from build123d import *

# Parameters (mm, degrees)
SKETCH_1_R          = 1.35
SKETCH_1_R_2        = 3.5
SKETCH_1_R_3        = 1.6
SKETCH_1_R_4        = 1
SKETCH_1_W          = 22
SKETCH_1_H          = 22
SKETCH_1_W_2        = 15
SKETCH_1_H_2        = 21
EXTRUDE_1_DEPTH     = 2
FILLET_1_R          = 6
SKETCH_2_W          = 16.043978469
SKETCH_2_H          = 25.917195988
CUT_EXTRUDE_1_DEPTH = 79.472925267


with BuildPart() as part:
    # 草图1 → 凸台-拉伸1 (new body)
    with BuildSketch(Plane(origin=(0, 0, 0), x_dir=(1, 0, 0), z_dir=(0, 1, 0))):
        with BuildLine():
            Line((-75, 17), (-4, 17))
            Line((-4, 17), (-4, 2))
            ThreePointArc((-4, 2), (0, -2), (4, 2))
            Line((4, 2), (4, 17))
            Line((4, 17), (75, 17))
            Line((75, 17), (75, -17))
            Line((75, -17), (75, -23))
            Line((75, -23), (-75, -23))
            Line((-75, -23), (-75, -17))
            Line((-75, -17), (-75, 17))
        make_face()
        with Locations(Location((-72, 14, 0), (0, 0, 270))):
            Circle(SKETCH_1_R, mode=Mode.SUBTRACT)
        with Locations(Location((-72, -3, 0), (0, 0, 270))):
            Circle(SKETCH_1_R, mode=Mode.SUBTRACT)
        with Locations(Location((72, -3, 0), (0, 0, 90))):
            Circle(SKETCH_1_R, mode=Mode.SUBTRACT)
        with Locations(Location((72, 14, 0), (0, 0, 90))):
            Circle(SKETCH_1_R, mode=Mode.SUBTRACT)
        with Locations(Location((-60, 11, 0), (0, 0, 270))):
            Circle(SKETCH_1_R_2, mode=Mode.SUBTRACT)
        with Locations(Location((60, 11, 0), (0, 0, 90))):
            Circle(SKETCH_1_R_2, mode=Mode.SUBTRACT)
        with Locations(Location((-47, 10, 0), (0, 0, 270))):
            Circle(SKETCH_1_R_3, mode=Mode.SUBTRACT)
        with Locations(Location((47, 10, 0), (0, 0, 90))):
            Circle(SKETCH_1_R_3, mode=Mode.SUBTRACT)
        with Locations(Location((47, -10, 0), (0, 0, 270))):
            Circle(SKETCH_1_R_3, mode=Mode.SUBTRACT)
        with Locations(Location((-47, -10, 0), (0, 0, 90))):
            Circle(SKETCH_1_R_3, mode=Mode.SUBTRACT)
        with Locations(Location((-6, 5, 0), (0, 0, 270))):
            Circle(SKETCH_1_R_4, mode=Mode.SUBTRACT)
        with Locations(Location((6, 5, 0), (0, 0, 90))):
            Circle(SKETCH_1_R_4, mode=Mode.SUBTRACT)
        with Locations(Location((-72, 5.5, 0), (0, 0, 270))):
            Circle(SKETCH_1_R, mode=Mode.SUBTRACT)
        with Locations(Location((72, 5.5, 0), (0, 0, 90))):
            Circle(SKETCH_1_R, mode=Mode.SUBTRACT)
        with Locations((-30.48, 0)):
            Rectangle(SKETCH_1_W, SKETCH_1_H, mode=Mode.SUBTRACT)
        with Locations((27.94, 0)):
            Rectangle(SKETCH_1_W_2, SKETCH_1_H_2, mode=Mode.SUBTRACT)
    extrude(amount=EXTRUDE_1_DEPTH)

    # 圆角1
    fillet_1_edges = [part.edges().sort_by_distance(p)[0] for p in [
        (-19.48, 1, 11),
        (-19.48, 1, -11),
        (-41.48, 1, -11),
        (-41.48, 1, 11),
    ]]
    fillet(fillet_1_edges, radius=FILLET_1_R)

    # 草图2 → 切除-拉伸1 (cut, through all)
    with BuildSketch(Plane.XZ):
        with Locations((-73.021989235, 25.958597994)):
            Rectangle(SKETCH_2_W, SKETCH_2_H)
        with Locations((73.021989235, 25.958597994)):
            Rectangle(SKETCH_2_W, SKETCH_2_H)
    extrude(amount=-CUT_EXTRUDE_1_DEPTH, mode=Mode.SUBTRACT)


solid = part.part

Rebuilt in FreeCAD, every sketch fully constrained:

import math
import FreeCAD as App
import Part
import Sketcher
from FreeCAD import Vector
Q = App.Units.Quantity


def edges_at(feature, points):
    """Names of the edges that pass closest to the given points."""
    edges = feature.Shape.Edges
    near = lambda p: min(range(len(edges)), key=lambda i: edges[i].distToShape(Part.Vertex(*p))[0])
    return sorted({f"Edge{near(p) + 1}" for p in points})


def add_polygon(sketch, points):
    """Adds a closed chain of lines whose ends are joined by coincident constraints."""
    first, n = sketch.GeometryCount, len(points)
    for a, b in zip(points, points[1:] + points[:1]):
        sketch.addGeometry(Part.LineSegment(App.Vector(*a, 0), App.Vector(*b, 0)), False)
    for i in range(n):
        sketch.addConstraint(Sketcher.Constraint("Coincident", first + i, 2, first + (i + 1) % n, 1))

doc = App.newDocument("Part")
body = doc.addObject("PartDesign::Body", "Body")

# Sketch on XZ plane
sketch1 = body.newObject("Sketcher::SketchObject", "Sketch")
sketch1.AttachmentSupport = (doc.getObject("XZ_Plane"), [""])
sketch1.MapMode = "FlatFace"
sketch1.addGeometry(Part.LineSegment(Vector(-4, -17, 0), Vector(-75, -17, 0)), False)  # 0
sketch1.addGeometry(Part.LineSegment(Vector(-75, -17, 0), Vector(-75, 23, 0)), False)  # 1
sketch1.addGeometry(Part.LineSegment(Vector(-75, 23, 0), Vector(75, 23, 0)), False)  # 2
sketch1.addGeometry(Part.LineSegment(Vector(75, 23, 0), Vector(75, -17, 0)), False)  # 3
sketch1.addGeometry(Part.LineSegment(Vector(75, -17, 0), Vector(4, -17, 0)), False)  # 4
sketch1.addGeometry(Part.LineSegment(Vector(4, -17, 0), Vector(4, -2, 0)), False)  # 5
sketch1.addGeometry(Part.ArcOfCircle(Part.Circle(Vector(0, -2, 0), Vector(0, 0, 1), 4), math.radians(0), math.radians(180)), False)  # 6
sketch1.addGeometry(Part.LineSegment(Vector(-4, -2, 0), Vector(-4, -17, 0)), False)  # 7
sketch1.addGeometry(Part.Circle(Vector(47, 10, 0), Vector(0, 0, 1), 1.6), False)  # 8
sketch1.addGeometry(Part.Circle(Vector(72, 3, 0), Vector(0, 0, 1), 1.35), False)  # 9
add_polygon(sketch1, [(20.44, 10.5), (20.44, -10.5), (35.44, -10.5), (35.44, 10.5)])  # lines 10-13
sketch1.addGeometry(Part.Circle(Vector(-47, 10, 0), Vector(0, 0, 1), 1.6), False)  # 14
add_polygon(sketch1, [(-41.48, 11), (-41.48, -11), (-19.48, -11), (-19.48, 11)])  # lines 15-18
sketch1.addGeometry(Part.Circle(Vector(-72, 3, 0), Vector(0, 0, 1), 1.35), False)  # 19
sketch1.addGeometry(Part.Circle(Vector(72, -5.5, 0), Vector(0, 0, 1), 1.35), False)  # 20
sketch1.addGeometry(Part.Circle(Vector(6, -5, 0), Vector(0, 0, 1), 1), False)  # 21
sketch1.addGeometry(Part.Circle(Vector(60, -11, 0), Vector(0, 0, 1), 3.5), False)  # 22
sketch1.addGeometry(Part.Circle(Vector(47, -10, 0), Vector(0, 0, 1), 1.6), False)  # 23
sketch1.addGeometry(Part.Circle(Vector(72, -14, 0), Vector(0, 0, 1), 1.35), False)  # 24
sketch1.addGeometry(Part.Circle(Vector(-6, -5, 0), Vector(0, 0, 1), 1), False)  # 25
sketch1.addGeometry(Part.Circle(Vector(-72, -5.5, 0), Vector(0, 0, 1), 1.35), False)  # 26
sketch1.addGeometry(Part.Circle(Vector(-47, -10, 0), Vector(0, 0, 1), 1.6), False)  # 27
sketch1.addGeometry(Part.Circle(Vector(-60, -11, 0), Vector(0, 0, 1), 3.5), False)  # 28
sketch1.addGeometry(Part.Circle(Vector(-72, -14, 0), Vector(0, 0, 1), 1.35), False)  # 29
sketch1.addConstraint([
    Sketcher.Constraint("Coincident", 0, 2, 1, 1),
    Sketcher.Constraint("Coincident", 1, 2, 2, 1),
    Sketcher.Constraint("Coincident", 2, 2, 3, 1),
    Sketcher.Constraint("Coincident", 3, 2, 4, 1),
    Sketcher.Constraint("Coincident", 4, 2, 5, 1),
    Sketcher.Constraint("Tangent", 5, 2, 6, 1),
    Sketcher.Constraint("Tangent", 6, 2, 7, 1),
    Sketcher.Constraint("Coincident", 7, 2, 0, 1),
    Sketcher.Constraint("Horizontal", 0),
    Sketcher.Constraint("Vertical", 1),
    Sketcher.Constraint("Horizontal", 2),
    Sketcher.Constraint("Vertical", 3),
    Sketcher.Constraint("Horizontal", 4),
    Sketcher.Constraint("Vertical", 5),
    Sketcher.Constraint("Vertical", 7),
    Sketcher.Constraint("Vertical", 10),
    Sketcher.Constraint("Horizontal", 11),
    Sketcher.Constraint("Vertical", 12),
    Sketcher.Constraint("Horizontal", 13),
    Sketcher.Constraint("Vertical", 15),
    Sketcher.Constraint("Horizontal", 16),
    Sketcher.Constraint("Vertical", 17),
    Sketcher.Constraint("Horizontal", 18),
    Sketcher.Constraint("Equal", 8, 14),
    Sketcher.Constraint("Equal", 9, 19),
    Sketcher.Constraint("Equal", 19, 20),
    Sketcher.Constraint("Equal", 14, 23),
    Sketcher.Constraint("Equal", 20, 24),
    Sketcher.Constraint("Equal", 21, 25),
    Sketcher.Constraint("Equal", 24, 26),
    Sketcher.Constraint("Equal", 23, 27),
    Sketcher.Constraint("Equal", 22, 28),
    Sketcher.Constraint("Equal", 26, 29),
    Sketcher.Constraint("Symmetric", 14, 3, 23, 3, -1, 1),
    Sketcher.Constraint("Symmetric", 8, 3, 27, 3, -1, 1),
    Sketcher.Constraint("Symmetric", 8, 3, 14, 3, -2),
    Sketcher.Constraint("Symmetric", 9, 3, 19, 3, -2),
    Sketcher.Constraint("Symmetric", 21, 3, 25, 3, -2),
    Sketcher.Constraint("Symmetric", 20, 3, 26, 3, -2),
    Sketcher.Constraint("Symmetric", 22, 3, 28, 3, -2),
    Sketcher.Constraint("Symmetric", 24, 3, 29, 3, -2),
    Sketcher.Constraint("Symmetric", 0, 2, 3, 2, -2),
    Sketcher.Constraint("PointOnObject", 6, 3, -2),
    Sketcher.Constraint("Horizontal", 28, 3, 15, 2),
    Sketcher.Constraint("Vertical", 9, 3, 20, 3),
    Sketcher.Constraint("Vertical", 20, 3, 24, 3),
    Sketcher.Constraint("Equal", 13, 5),
    Sketcher.Constraint("Equal", 18, 15),
    Sketcher.Constraint("Diameter", 21, Q("2 mm")),
    Sketcher.Constraint("Diameter", 22, Q("7 mm")),
    Sketcher.Constraint("Radius", 6, Q("4 mm")),
    Sketcher.Constraint("Diameter", 8, Q("3.2 mm")),
    Sketcher.Constraint("Diameter", 9, Q("2.7 mm")),
    Sketcher.Constraint("DistanceX", 0, 2, 0, 1, Q("71 mm")),
    Sketcher.Constraint("DistanceX", 11, 1, 11, 2, Q("15 mm")),
    Sketcher.Constraint("DistanceX", 16, 1, 16, 2, Q("22 mm")),
    Sketcher.Constraint("DistanceY", 1, 1, 1, 2, Q("40 mm")),
    Sketcher.Constraint("DistanceY", 10, 2, 10, 1, Q("21 mm")),
    Sketcher.Constraint("DistanceY", 6, 3, -1, 1, Q("2 mm")),
    Sketcher.Constraint("DistanceX", -1, 1, 8, 3, Q("47 mm")),
    Sketcher.Constraint("DistanceY", -1, 1, 8, 3, Q("10 mm")),
    Sketcher.Constraint("DistanceX", -1, 1, 9, 3, Q("72 mm")),
    Sketcher.Constraint("DistanceY", -1, 1, 9, 3, Q("3 mm")),
    Sketcher.Constraint("DistanceX", -1, 1, 21, 3, Q("6 mm")),
    Sketcher.Constraint("DistanceY", 21, 3, -1, 1, Q("5 mm")),
    Sketcher.Constraint("DistanceX", -1, 1, 22, 3, Q("60 mm")),
    Sketcher.Constraint("DistanceY", 22, 3, -1, 1, Q("11 mm")),
    Sketcher.Constraint("DistanceY", 24, 3, -1, 1, Q("14 mm")),
    Sketcher.Constraint("DistanceY", 20, 3, -1, 1, Q("5.5 mm")),
    Sketcher.Constraint("DistanceY", 10, 2, -1, 1, Q("10.5 mm")),
    Sketcher.Constraint("DistanceX", -1, 1, 10, 2, Q("20.44 mm")),
    Sketcher.Constraint("DistanceX", 15, 2, -1, 1, Q("41.48 mm")),
])
pad1 = body.newObject("PartDesign::Pad", "Pad")
pad1.Profile = sketch1
pad1.Length = 2
pad1.Reversed = True
doc.recompute()

fillet = body.newObject("PartDesign::Fillet", "Fillet")
fillet.Base = (pad1, edges_at(pad1, [
    (-19.48, 1, 11),
    (-19.48, 1, -11),
    (-41.48, 1, -11),
    (-41.48, 1, 11),
]))
fillet.Radius = 6

# Sketch on XZ plane
sketch2 = body.newObject("Sketcher::SketchObject", "Sketch001")
sketch2.AttachmentSupport = (doc.getObject("XZ_Plane"), [""])
sketch2.MapMode = "FlatFace"
add_polygon(sketch2, [(-81.043978, 38.917196), (-81.043978, 13), (-65, 13), (-65, 38.917196)])  # lines 0-3
add_polygon(sketch2, [(65, 38.917196), (65, 13), (81.043978, 13), (81.043978, 38.917196)])  # lines 4-7
sketch2.addConstraint([
    Sketcher.Constraint("Vertical", 0),
    Sketcher.Constraint("Horizontal", 1),
    Sketcher.Constraint("Vertical", 2),
    Sketcher.Constraint("Horizontal", 3),
    Sketcher.Constraint("Vertical", 4),
    Sketcher.Constraint("Horizontal", 5),
    Sketcher.Constraint("Vertical", 6),
    Sketcher.Constraint("Horizontal", 7),
    Sketcher.Constraint("Symmetric", 1, 2, 4, 2, -2),
    Sketcher.Constraint("Symmetric", 3, 2, 6, 2, -2),
    Sketcher.Constraint("DistanceY", -1, 1, 0, 2, Q("13 mm")),
    Sketcher.Constraint("DistanceX", 1, 2, -1, 1, Q("65 mm")),
    Sketcher.Constraint("DistanceX", 1, 1, 1, 2, Q("16.043978 mm")),
    Sketcher.Constraint("DistanceY", 0, 2, 0, 1, Q("25.917196 mm")),
])
pocket1 = body.newObject("PartDesign::Pocket", "Pocket")
pocket1.Profile = sketch2
pocket1.Type = "ThroughAll"

doc.recompute()
